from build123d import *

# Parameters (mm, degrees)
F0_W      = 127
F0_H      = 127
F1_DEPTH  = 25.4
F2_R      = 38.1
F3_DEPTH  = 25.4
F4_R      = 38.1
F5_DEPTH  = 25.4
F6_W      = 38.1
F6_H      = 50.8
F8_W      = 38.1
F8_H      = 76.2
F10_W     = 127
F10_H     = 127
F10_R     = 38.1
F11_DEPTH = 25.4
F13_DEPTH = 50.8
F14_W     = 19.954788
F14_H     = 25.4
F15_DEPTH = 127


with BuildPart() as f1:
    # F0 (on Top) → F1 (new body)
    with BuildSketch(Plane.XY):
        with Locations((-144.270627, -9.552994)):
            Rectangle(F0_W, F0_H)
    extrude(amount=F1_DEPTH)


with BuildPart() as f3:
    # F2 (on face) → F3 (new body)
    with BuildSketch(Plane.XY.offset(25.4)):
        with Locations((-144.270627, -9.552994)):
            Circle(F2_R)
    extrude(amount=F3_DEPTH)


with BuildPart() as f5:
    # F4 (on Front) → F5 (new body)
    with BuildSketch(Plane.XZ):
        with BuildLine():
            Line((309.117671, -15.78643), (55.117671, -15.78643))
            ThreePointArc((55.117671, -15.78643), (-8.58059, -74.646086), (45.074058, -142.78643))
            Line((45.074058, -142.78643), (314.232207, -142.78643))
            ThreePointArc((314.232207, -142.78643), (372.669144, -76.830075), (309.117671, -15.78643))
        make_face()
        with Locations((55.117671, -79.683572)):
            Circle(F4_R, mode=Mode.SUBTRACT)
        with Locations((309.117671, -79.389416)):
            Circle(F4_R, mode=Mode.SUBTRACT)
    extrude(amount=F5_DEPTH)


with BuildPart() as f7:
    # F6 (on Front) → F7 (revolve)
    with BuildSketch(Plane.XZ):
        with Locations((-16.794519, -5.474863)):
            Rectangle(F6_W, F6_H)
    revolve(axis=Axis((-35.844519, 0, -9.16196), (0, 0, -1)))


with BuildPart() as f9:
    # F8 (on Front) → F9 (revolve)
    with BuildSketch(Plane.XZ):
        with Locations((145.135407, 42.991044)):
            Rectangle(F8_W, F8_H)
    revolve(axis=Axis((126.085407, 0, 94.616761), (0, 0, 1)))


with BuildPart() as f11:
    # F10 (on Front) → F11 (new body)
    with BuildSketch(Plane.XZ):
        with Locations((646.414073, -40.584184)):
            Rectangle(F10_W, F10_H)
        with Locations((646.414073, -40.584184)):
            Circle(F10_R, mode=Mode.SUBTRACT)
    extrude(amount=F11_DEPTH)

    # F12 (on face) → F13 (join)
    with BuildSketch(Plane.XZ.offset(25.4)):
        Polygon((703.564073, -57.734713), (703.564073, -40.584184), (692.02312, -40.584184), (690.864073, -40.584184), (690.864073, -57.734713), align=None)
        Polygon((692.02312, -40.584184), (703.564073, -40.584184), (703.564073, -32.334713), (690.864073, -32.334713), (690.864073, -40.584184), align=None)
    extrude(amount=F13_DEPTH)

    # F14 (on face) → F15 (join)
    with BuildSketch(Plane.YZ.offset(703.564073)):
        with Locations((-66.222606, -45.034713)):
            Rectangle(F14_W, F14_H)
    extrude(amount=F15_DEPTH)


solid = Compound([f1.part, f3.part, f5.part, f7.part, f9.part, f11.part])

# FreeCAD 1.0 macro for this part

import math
import FreeCAD as App
import Part
import Sketcher
from FreeCAD import Vector
Q = App.Units.Quantity

doc = App.newDocument("Part")
body = doc.addObject("PartDesign::Body", "Body")

# Sketch on XY plane
sketch1 = body.newObject("Sketcher::SketchObject", "Sketch")
sketch1.AttachmentSupport = (doc.getObject("XY_Plane"), [""])
sketch1.MapMode = "FlatFace"
sketch1.addGeometry(Part.LineSegment(Vector(-207.770627, 53.947006, 0), Vector(-207.770627, -73.052994, 0)), False)
sketch1.addGeometry(Part.LineSegment(Vector(-207.770627, -73.052994, 0), Vector(-80.770627, -73.052994, 0)), False)
sketch1.addGeometry(Part.LineSegment(Vector(-80.770627, -73.052994, 0), Vector(-80.770627, 53.947006, 0)), False)
sketch1.addGeometry(Part.LineSegment(Vector(-80.770627, 53.947006, 0), Vector(-207.770627, 53.947006, 0)), False)
sketch1.addConstraint(Sketcher.Constraint("Coincident", 0, 2, 1, 1))
sketch1.addConstraint(Sketcher.Constraint("Coincident", 1, 2, 2, 1))
sketch1.addConstraint(Sketcher.Constraint("Coincident", 2, 2, 3, 1))
sketch1.addConstraint(Sketcher.Constraint("Coincident", 3, 2, 0, 1))
sketch1.addConstraint(Sketcher.Constraint("Vertical", 0))
sketch1.addConstraint(Sketcher.Constraint("Horizontal", 1))
sketch1.addConstraint(Sketcher.Constraint("Vertical", 2))
sketch1.addConstraint(Sketcher.Constraint("Horizontal", 3))
sketch1.addConstraint(Sketcher.Constraint("Equal", 3, 0))
sketch1.addConstraint(Sketcher.Constraint("DistanceX", 1, 1, 1, 2, Q("5 in")))
sketch1.addConstraint(Sketcher.Constraint("DistanceX", 0, 2, -1, 1, 207.770627))
sketch1.addConstraint(Sketcher.Constraint("DistanceY", 0, 2, -1, 1, 73.052994))
pad1 = body.newObject("PartDesign::Pad", "Pad")
pad1.Profile = sketch1
pad1.Length = Q("1 in")
body2 = doc.addObject("PartDesign::Body", "Body001")

# Sketch on XY plane
sketch2 = body2.newObject("Sketcher::SketchObject", "Sketch001")
sketch2.AttachmentSupport = (doc.getObject("XY_Plane001"), [""])
sketch2.MapMode = "FlatFace"
sketch2.AttachmentOffset = App.Placement(Vector(0, 0, 1 * 25.4), App.Rotation())
sketch2.addGeometry(Part.Circle(Vector(-144.270627, -9.552994, 0), Vector(0, 0, 1), 38.1), False)
sketch2.addConstraint(Sketcher.Constraint("Diameter", 0, Q("3 in")))
sketch2.addConstraint(Sketcher.Constraint("DistanceX", 0, 3, -1, 1, 144.270627))
sketch2.addConstraint(Sketcher.Constraint("DistanceY", 0, 3, -1, 1, 9.552994))
pad2 = body2.newObject("PartDesign::Pad", "Pad001")
pad2.Profile = sketch2
pad2.Length = Q("1 in")
body3 = doc.addObject("PartDesign::Body", "Body002")

# Sketch on XZ plane
sketch3 = body3.newObject("Sketcher::SketchObject", "Sketch002")
sketch3.AttachmentSupport = (doc.getObject("XZ_Plane002"), [""])
sketch3.MapMode = "FlatFace"
sketch3.addGeometry(Part.LineSegment(Vector(309.117671, -15.78643, 0), Vector(55.117671, -15.78643, 0)), False)
sketch3.addGeometry(Part.ArcOfCircle(Part.Circle(Vector(55.117672, -79.683572, 0), Vector(0, 0, 1), 63.897142), math.radians(90.000001), math.radians(260.956512)), False)
sketch3.addGeometry(Part.LineSegment(Vector(45.074058, -142.78643, 0), Vector(314.232207, -142.78643, 0)), False)
sketch3.addGeometry(Part.ArcOfCircle(Part.Circle(Vector(309.117672, -79.389416, 0), Vector(0, 0, 1), 63.602986), math.radians(-85.387669), math.radians(90.000001)), False)
sketch3.addGeometry(Part.Circle(Vector(55.117671, -79.683572, 0), Vector(0, 0, 1), 38.1), False)
sketch3.addGeometry(Part.Circle(Vector(309.117671, -79.389416, 0), Vector(0, 0, 1), 38.1), False)
sketch3.addConstraint(Sketcher.Constraint("Tangent", 0, 2, 1, 1))
sketch3.addConstraint(Sketcher.Constraint("Coincident", 1, 2, 2, 1))
sketch3.addConstraint(Sketcher.Constraint("Coincident", 2, 2, 3, 1))
sketch3.addConstraint(Sketcher.Constraint("Tangent", 3, 2, 0, 1))
sketch3.addConstraint(Sketcher.Constraint("Horizontal", 0))
sketch3.addConstraint(Sketcher.Constraint("Horizontal", 2))
sketch3.addConstraint(Sketcher.Constraint("Coincident", 4, 3, 1, 3))
sketch3.addConstraint(Sketcher.Constraint("Coincident", 5, 3, 3, 3))
sketch3.addConstraint(Sketcher.Constraint("Equal", 4, 5))
sketch3.addConstraint(Sketcher.Constraint("Diameter", 4, Q("3 in")))
sketch3.addConstraint(Sketcher.Constraint("DistanceX", 0, 2, 0, 1, Q("10 in")))
sketch3.addConstraint(Sketcher.Constraint("DistanceY", 1, 2, 0, 2, Q("5 in")))
sketch3.addConstraint(Sketcher.Constraint("Radius", 1, 63.897142))
sketch3.addConstraint(Sketcher.Constraint("Radius", 3, 63.602986))
sketch3.addConstraint(Sketcher.Constraint("DistanceX", -1, 1, 1, 3, 55.117672))
sketch3.addConstraint(Sketcher.Constraint("DistanceY", 4, 3, -1, 1, 79.683572))
pad3 = body3.newObject("PartDesign::Pad", "Pad002")
pad3.Profile = sketch3
pad3.Length = Q("1 in")
body4 = doc.addObject("PartDesign::Body", "Body003")

# Sketch on XZ plane
sketch4 = body4.newObject("Sketcher::SketchObject", "Sketch003")
sketch4.AttachmentSupport = (doc.getObject("XZ_Plane003"), [""])
sketch4.MapMode = "FlatFace"
sketch4.addGeometry(Part.LineSegment(Vector(-35.844519, 19.925137, 0), Vector(-35.844519, -30.874863, 0)), False)
sketch4.addGeometry(Part.LineSegment(Vector(-35.844519, -30.874863, 0), Vector(2.255481, -30.874863, 0)), False)
sketch4.addGeometry(Part.LineSegment(Vector(2.255481, -30.874863, 0), Vector(2.255481, 19.925137, 0)), False)
sketch4.addGeometry(Part.LineSegment(Vector(2.255481, 19.925137, 0), Vector(-35.844519, 19.925137, 0)), False)
sketch4.addGeometry(Part.LineSegment(Vector(-35.844519, 19.925137, 0), Vector(-35.844519, -30.874863, 0)), True)  # axis
sketch4.addConstraint(Sketcher.Constraint("Coincident", 0, 2, 1, 1))
sketch4.addConstraint(Sketcher.Constraint("Coincident", 1, 2, 2, 1))
sketch4.addConstraint(Sketcher.Constraint("Coincident", 2, 2, 3, 1))
sketch4.addConstraint(Sketcher.Constraint("Coincident", 3, 2, 0, 1))
sketch4.addConstraint(Sketcher.Constraint("Vertical", 0))
sketch4.addConstraint(Sketcher.Constraint("Horizontal", 1))
sketch4.addConstraint(Sketcher.Constraint("Vertical", 2))
sketch4.addConstraint(Sketcher.Constraint("Horizontal", 3))
sketch4.addConstraint(Sketcher.Constraint("Vertical", 4))
sketch4.addConstraint(Sketcher.Constraint("Coincident", 4, 1, 3, 2))
sketch4.addConstraint(Sketcher.Constraint("Horizontal", 1, 2, 4, 2))
sketch4.addConstraint(Sketcher.Constraint("DistanceY", 0, 2, 0, 1, Q("2 in")))
sketch4.addConstraint(Sketcher.Constraint("DistanceX", 1, 1, 1, 2, Q("1.5 in")))
sketch4.addConstraint(Sketcher.Constraint("DistanceX", 0, 2, -1, 1, 35.844519))
sketch4.addConstraint(Sketcher.Constraint("DistanceY", 0, 2, -1, 1, 30.874863))
revolution = body4.newObject("PartDesign::Revolution", "Revolution")
revolution.Profile = sketch4
revolution.ReferenceAxis = (sketch4, ["Axis0"])
revolution.Angle = 360
body5 = doc.addObject("PartDesign::Body", "Body004")

# Sketch on XZ plane
sketch5 = body5.newObject("Sketcher::SketchObject", "Sketch004")
sketch5.AttachmentSupport = (doc.getObject("XZ_Plane004"), [""])
sketch5.MapMode = "FlatFace"
sketch5.addGeometry(Part.LineSegment(Vector(126.085407, 81.091044, 0), Vector(126.085407, 4.891044, 0)), False)
sketch5.addGeometry(Part.LineSegment(Vector(126.085407, 4.891044, 0), Vector(164.185407, 4.891044, 0)), False)
sketch5.addGeometry(Part.LineSegment(Vector(164.185407, 4.891044, 0), Vector(164.185407, 81.091044, 0)), False)
sketch5.addGeometry(Part.LineSegment(Vector(164.185407, 81.091044, 0), Vector(126.085407, 81.091044, 0)), False)
sketch5.addGeometry(Part.LineSegment(Vector(126.085407, 4.891044, 0), Vector(126.085407, 81.091044, 0)), True)  # axis
sketch5.addConstraint(Sketcher.Constraint("Coincident", 0, 2, 1, 1))
sketch5.addConstraint(Sketcher.Constraint("Coincident", 1, 2, 2, 1))
sketch5.addConstraint(Sketcher.Constraint("Coincident", 2, 2, 3, 1))
sketch5.addConstraint(Sketcher.Constraint("Coincident", 3, 2, 0, 1))
sketch5.addConstraint(Sketcher.Constraint("Vertical", 0))
sketch5.addConstraint(Sketcher.Constraint("Horizontal", 1))
sketch5.addConstraint(Sketcher.Constraint("Vertical", 2))
sketch5.addConstraint(Sketcher.Constraint("Horizontal", 3))
sketch5.addConstraint(Sketcher.Constraint("Vertical", 4))
sketch5.addConstraint(Sketcher.Constraint("Coincident", 4, 1, 0, 2))
sketch5.addConstraint(Sketcher.Constraint("Horizontal", 2, 2, 4, 2))
sketch5.addConstraint(Sketcher.Constraint("DistanceY", 0, 2, 0, 1, Q("3 in")))
sketch5.addConstraint(Sketcher.Constraint("DistanceX", 1, 1, 1, 2, Q("1.5 in")))
sketch5.addConstraint(Sketcher.Constraint("DistanceX", -1, 1, 0, 2, 126.085407))
sketch5.addConstraint(Sketcher.Constraint("DistanceY", -1, 1, 0, 2, 4.891044))
revolution2 = body5.newObject("PartDesign::Revolution", "Revolution001")
revolution2.Profile = sketch5
revolution2.ReferenceAxis = (sketch5, ["Axis0"])
revolution2.Angle = 360
body6 = doc.addObject("PartDesign::Body", "Body005")

# Sketch on XZ plane
sketch6 = body6.newObject("Sketcher::SketchObject", "Sketch005")
sketch6.AttachmentSupport = (doc.getObject("XZ_Plane005"), [""])
sketch6.MapMode = "FlatFace"
sketch6.addGeometry(Part.LineSegment(Vector(582.914073, 22.915816, 0), Vector(582.914073, -104.084184, 0)), False)
sketch6.addGeometry(Part.LineSegment(Vector(582.914073, -104.084184, 0), Vector(709.914073, -104.084184, 0)), False)
sketch6.addGeometry(Part.LineSegment(Vector(709.914073, -104.084184, 0), Vector(709.914073, 22.915816, 0)), False)
sketch6.addGeometry(Part.LineSegment(Vector(709.914073, 22.915816, 0), Vector(582.914073, 22.915816, 0)), False)
sketch6.addGeometry(Part.Circle(Vector(646.414073, -40.584184, 0), Vector(0, 0, 1), 38.1), False)
sketch6.addConstraint(Sketcher.Constraint("Coincident", 0, 2, 1, 1))
sketch6.addConstraint(Sketcher.Constraint("Coincident", 1, 2, 2, 1))
sketch6.addConstraint(Sketcher.Constraint("Coincident", 2, 2, 3, 1))
sketch6.addConstraint(Sketcher.Constraint("Coincident", 3, 2, 0, 1))
sketch6.addConstraint(Sketcher.Constraint("Vertical", 0))
sketch6.addConstraint(Sketcher.Constraint("Horizontal", 1))
sketch6.addConstraint(Sketcher.Constraint("Vertical", 2))
sketch6.addConstraint(Sketcher.Constraint("Horizontal", 3))
sketch6.addConstraint(Sketcher.Constraint("Equal", 3, 0))
sketch6.addConstraint(Sketcher.Constraint("Diameter", 4, Q("3 in")))
sketch6.addConstraint(Sketcher.Constraint("DistanceX", 1, 1, 1, 2, Q("5 in")))
sketch6.addConstraint(Sketcher.Constraint("DistanceX", 0, 2, 4, 3, Q("2.5 in")))
sketch6.addConstraint(Sketcher.Constraint("DistanceY", 0, 2, 4, 3, Q("2.5 in")))
sketch6.addConstraint(Sketcher.Constraint("DistanceX", -1, 1, 4, 3, 646.414073))
sketch6.addConstraint(Sketcher.Constraint("DistanceY", 4, 3, -1, 1, 40.584184))
pad4 = body6.newObject("PartDesign::Pad", "Pad003")
pad4.Profile = sketch6
pad4.Length = Q("1 in")

# Sketch on XZ plane
sketch7 = body6.newObject("Sketcher::SketchObject", "Sketch006")
sketch7.AttachmentSupport = (doc.getObject("XZ_Plane005"), [""])
sketch7.MapMode = "FlatFace"
sketch7.AttachmentOffset = App.Placement(Vector(0, 0, 1 * 25.4), App.Rotation())
sketch7.addGeometry(Part.LineSegment(Vector(703.564073, -57.734713, 0), Vector(703.564073, -32.334713, 0)), False)
sketch7.addGeometry(Part.LineSegment(Vector(703.564073, -32.334713, 0), Vector(690.864073, -32.334713, 0)), False)
sketch7.addGeometry(Part.LineSegment(Vector(690.864073, -32.334713, 0), Vector(690.864073, -57.734713, 0)), False)
sketch7.addGeometry(Part.LineSegment(Vector(690.864073, -57.734713, 0), Vector(703.564073, -57.734713, 0)), False)
sketch7.addConstraint(Sketcher.Constraint("Coincident", 0, 2, 1, 1))
sketch7.addConstraint(Sketcher.Constraint("Coincident", 1, 2, 2, 1))
sketch7.addConstraint(Sketcher.Constraint("Coincident", 2, 2, 3, 1))
sketch7.addConstraint(Sketcher.Constraint("Coincident", 3, 2, 0, 1))
sketch7.addConstraint(Sketcher.Constraint("Vertical", 0))
sketch7.addConstraint(Sketcher.Constraint("Horizontal", 1))
sketch7.addConstraint(Sketcher.Constraint("Vertical", 2))
sketch7.addConstraint(Sketcher.Constraint("Horizontal", 3))
sketch7.addConstraint(Sketcher.Constraint("DistanceY", 0, 1, 0, 2, Q("1 in")))
sketch7.addConstraint(Sketcher.Constraint("DistanceX", 1, 2, 1, 1, Q("0.5 in")))
sketch7.addConstraint(Sketcher.Constraint("DistanceX", -1, 1, 0, 2, 703.564073))
sketch7.addConstraint(Sketcher.Constraint("DistanceY", 0, 2, -1, 1, 32.334713))
pad5 = body6.newObject("PartDesign::Pad", "Pad004")
pad5.Profile = sketch7
pad5.Length = Q("2 in")

# Sketch on YZ plane
sketch8 = body6.newObject("Sketcher::SketchObject", "Sketch007")
sketch8.AttachmentSupport = (doc.getObject("YZ_Plane005"), [""])
sketch8.MapMode = "FlatFace"
sketch8.AttachmentOffset = App.Placement(Vector(0, 0, 703.564073), App.Rotation())
sketch8.addGeometry(Part.LineSegment(Vector(-76.2, -32.334713, 0), Vector(-76.2, -57.734713, 0)), False)
sketch8.addGeometry(Part.LineSegment(Vector(-76.2, -57.734713, 0), Vector(-56.245212, -57.734713, 0)), False)
sketch8.addGeometry(Part.LineSegment(Vector(-56.245212, -57.734713, 0), Vector(-56.245212, -32.334713, 0)), False)
sketch8.addGeometry(Part.LineSegment(Vector(-56.245212, -32.334713, 0), Vector(-76.2, -32.334713, 0)), False)
sketch8.addConstraint(Sketcher.Constraint("Coincident", 0, 2, 1, 1))
sketch8.addConstraint(Sketcher.Constraint("Coincident", 1, 2, 2, 1))
sketch8.addConstraint(Sketcher.Constraint("Coincident", 2, 2, 3, 1))
sketch8.addConstraint(Sketcher.Constraint("Coincident", 3, 2, 0, 1))
sketch8.addConstraint(Sketcher.Constraint("Vertical", 0))
sketch8.addConstraint(Sketcher.Constraint("Horizontal", 1))
sketch8.addConstraint(Sketcher.Constraint("Vertical", 2))
sketch8.addConstraint(Sketcher.Constraint("Horizontal", 3))
sketch8.addConstraint(Sketcher.Constraint("DistanceY", 0, 2, 0, 1, Q("1 in")))
sketch8.addConstraint(Sketcher.Constraint("DistanceX", 0, 2, -1, 1, Q("3 in")))
sketch8.addConstraint(Sketcher.Constraint("DistanceX", 1, 1, 1, 2, 19.954788))
sketch8.addConstraint(Sketcher.Constraint("DistanceY", 0, 2, -1, 1, 57.734713))
pad6 = body6.newObject("PartDesign::Pad", "Pad005")
pad6.Profile = sketch8
pad6.Length = Q("5 in")

doc.recompute()
